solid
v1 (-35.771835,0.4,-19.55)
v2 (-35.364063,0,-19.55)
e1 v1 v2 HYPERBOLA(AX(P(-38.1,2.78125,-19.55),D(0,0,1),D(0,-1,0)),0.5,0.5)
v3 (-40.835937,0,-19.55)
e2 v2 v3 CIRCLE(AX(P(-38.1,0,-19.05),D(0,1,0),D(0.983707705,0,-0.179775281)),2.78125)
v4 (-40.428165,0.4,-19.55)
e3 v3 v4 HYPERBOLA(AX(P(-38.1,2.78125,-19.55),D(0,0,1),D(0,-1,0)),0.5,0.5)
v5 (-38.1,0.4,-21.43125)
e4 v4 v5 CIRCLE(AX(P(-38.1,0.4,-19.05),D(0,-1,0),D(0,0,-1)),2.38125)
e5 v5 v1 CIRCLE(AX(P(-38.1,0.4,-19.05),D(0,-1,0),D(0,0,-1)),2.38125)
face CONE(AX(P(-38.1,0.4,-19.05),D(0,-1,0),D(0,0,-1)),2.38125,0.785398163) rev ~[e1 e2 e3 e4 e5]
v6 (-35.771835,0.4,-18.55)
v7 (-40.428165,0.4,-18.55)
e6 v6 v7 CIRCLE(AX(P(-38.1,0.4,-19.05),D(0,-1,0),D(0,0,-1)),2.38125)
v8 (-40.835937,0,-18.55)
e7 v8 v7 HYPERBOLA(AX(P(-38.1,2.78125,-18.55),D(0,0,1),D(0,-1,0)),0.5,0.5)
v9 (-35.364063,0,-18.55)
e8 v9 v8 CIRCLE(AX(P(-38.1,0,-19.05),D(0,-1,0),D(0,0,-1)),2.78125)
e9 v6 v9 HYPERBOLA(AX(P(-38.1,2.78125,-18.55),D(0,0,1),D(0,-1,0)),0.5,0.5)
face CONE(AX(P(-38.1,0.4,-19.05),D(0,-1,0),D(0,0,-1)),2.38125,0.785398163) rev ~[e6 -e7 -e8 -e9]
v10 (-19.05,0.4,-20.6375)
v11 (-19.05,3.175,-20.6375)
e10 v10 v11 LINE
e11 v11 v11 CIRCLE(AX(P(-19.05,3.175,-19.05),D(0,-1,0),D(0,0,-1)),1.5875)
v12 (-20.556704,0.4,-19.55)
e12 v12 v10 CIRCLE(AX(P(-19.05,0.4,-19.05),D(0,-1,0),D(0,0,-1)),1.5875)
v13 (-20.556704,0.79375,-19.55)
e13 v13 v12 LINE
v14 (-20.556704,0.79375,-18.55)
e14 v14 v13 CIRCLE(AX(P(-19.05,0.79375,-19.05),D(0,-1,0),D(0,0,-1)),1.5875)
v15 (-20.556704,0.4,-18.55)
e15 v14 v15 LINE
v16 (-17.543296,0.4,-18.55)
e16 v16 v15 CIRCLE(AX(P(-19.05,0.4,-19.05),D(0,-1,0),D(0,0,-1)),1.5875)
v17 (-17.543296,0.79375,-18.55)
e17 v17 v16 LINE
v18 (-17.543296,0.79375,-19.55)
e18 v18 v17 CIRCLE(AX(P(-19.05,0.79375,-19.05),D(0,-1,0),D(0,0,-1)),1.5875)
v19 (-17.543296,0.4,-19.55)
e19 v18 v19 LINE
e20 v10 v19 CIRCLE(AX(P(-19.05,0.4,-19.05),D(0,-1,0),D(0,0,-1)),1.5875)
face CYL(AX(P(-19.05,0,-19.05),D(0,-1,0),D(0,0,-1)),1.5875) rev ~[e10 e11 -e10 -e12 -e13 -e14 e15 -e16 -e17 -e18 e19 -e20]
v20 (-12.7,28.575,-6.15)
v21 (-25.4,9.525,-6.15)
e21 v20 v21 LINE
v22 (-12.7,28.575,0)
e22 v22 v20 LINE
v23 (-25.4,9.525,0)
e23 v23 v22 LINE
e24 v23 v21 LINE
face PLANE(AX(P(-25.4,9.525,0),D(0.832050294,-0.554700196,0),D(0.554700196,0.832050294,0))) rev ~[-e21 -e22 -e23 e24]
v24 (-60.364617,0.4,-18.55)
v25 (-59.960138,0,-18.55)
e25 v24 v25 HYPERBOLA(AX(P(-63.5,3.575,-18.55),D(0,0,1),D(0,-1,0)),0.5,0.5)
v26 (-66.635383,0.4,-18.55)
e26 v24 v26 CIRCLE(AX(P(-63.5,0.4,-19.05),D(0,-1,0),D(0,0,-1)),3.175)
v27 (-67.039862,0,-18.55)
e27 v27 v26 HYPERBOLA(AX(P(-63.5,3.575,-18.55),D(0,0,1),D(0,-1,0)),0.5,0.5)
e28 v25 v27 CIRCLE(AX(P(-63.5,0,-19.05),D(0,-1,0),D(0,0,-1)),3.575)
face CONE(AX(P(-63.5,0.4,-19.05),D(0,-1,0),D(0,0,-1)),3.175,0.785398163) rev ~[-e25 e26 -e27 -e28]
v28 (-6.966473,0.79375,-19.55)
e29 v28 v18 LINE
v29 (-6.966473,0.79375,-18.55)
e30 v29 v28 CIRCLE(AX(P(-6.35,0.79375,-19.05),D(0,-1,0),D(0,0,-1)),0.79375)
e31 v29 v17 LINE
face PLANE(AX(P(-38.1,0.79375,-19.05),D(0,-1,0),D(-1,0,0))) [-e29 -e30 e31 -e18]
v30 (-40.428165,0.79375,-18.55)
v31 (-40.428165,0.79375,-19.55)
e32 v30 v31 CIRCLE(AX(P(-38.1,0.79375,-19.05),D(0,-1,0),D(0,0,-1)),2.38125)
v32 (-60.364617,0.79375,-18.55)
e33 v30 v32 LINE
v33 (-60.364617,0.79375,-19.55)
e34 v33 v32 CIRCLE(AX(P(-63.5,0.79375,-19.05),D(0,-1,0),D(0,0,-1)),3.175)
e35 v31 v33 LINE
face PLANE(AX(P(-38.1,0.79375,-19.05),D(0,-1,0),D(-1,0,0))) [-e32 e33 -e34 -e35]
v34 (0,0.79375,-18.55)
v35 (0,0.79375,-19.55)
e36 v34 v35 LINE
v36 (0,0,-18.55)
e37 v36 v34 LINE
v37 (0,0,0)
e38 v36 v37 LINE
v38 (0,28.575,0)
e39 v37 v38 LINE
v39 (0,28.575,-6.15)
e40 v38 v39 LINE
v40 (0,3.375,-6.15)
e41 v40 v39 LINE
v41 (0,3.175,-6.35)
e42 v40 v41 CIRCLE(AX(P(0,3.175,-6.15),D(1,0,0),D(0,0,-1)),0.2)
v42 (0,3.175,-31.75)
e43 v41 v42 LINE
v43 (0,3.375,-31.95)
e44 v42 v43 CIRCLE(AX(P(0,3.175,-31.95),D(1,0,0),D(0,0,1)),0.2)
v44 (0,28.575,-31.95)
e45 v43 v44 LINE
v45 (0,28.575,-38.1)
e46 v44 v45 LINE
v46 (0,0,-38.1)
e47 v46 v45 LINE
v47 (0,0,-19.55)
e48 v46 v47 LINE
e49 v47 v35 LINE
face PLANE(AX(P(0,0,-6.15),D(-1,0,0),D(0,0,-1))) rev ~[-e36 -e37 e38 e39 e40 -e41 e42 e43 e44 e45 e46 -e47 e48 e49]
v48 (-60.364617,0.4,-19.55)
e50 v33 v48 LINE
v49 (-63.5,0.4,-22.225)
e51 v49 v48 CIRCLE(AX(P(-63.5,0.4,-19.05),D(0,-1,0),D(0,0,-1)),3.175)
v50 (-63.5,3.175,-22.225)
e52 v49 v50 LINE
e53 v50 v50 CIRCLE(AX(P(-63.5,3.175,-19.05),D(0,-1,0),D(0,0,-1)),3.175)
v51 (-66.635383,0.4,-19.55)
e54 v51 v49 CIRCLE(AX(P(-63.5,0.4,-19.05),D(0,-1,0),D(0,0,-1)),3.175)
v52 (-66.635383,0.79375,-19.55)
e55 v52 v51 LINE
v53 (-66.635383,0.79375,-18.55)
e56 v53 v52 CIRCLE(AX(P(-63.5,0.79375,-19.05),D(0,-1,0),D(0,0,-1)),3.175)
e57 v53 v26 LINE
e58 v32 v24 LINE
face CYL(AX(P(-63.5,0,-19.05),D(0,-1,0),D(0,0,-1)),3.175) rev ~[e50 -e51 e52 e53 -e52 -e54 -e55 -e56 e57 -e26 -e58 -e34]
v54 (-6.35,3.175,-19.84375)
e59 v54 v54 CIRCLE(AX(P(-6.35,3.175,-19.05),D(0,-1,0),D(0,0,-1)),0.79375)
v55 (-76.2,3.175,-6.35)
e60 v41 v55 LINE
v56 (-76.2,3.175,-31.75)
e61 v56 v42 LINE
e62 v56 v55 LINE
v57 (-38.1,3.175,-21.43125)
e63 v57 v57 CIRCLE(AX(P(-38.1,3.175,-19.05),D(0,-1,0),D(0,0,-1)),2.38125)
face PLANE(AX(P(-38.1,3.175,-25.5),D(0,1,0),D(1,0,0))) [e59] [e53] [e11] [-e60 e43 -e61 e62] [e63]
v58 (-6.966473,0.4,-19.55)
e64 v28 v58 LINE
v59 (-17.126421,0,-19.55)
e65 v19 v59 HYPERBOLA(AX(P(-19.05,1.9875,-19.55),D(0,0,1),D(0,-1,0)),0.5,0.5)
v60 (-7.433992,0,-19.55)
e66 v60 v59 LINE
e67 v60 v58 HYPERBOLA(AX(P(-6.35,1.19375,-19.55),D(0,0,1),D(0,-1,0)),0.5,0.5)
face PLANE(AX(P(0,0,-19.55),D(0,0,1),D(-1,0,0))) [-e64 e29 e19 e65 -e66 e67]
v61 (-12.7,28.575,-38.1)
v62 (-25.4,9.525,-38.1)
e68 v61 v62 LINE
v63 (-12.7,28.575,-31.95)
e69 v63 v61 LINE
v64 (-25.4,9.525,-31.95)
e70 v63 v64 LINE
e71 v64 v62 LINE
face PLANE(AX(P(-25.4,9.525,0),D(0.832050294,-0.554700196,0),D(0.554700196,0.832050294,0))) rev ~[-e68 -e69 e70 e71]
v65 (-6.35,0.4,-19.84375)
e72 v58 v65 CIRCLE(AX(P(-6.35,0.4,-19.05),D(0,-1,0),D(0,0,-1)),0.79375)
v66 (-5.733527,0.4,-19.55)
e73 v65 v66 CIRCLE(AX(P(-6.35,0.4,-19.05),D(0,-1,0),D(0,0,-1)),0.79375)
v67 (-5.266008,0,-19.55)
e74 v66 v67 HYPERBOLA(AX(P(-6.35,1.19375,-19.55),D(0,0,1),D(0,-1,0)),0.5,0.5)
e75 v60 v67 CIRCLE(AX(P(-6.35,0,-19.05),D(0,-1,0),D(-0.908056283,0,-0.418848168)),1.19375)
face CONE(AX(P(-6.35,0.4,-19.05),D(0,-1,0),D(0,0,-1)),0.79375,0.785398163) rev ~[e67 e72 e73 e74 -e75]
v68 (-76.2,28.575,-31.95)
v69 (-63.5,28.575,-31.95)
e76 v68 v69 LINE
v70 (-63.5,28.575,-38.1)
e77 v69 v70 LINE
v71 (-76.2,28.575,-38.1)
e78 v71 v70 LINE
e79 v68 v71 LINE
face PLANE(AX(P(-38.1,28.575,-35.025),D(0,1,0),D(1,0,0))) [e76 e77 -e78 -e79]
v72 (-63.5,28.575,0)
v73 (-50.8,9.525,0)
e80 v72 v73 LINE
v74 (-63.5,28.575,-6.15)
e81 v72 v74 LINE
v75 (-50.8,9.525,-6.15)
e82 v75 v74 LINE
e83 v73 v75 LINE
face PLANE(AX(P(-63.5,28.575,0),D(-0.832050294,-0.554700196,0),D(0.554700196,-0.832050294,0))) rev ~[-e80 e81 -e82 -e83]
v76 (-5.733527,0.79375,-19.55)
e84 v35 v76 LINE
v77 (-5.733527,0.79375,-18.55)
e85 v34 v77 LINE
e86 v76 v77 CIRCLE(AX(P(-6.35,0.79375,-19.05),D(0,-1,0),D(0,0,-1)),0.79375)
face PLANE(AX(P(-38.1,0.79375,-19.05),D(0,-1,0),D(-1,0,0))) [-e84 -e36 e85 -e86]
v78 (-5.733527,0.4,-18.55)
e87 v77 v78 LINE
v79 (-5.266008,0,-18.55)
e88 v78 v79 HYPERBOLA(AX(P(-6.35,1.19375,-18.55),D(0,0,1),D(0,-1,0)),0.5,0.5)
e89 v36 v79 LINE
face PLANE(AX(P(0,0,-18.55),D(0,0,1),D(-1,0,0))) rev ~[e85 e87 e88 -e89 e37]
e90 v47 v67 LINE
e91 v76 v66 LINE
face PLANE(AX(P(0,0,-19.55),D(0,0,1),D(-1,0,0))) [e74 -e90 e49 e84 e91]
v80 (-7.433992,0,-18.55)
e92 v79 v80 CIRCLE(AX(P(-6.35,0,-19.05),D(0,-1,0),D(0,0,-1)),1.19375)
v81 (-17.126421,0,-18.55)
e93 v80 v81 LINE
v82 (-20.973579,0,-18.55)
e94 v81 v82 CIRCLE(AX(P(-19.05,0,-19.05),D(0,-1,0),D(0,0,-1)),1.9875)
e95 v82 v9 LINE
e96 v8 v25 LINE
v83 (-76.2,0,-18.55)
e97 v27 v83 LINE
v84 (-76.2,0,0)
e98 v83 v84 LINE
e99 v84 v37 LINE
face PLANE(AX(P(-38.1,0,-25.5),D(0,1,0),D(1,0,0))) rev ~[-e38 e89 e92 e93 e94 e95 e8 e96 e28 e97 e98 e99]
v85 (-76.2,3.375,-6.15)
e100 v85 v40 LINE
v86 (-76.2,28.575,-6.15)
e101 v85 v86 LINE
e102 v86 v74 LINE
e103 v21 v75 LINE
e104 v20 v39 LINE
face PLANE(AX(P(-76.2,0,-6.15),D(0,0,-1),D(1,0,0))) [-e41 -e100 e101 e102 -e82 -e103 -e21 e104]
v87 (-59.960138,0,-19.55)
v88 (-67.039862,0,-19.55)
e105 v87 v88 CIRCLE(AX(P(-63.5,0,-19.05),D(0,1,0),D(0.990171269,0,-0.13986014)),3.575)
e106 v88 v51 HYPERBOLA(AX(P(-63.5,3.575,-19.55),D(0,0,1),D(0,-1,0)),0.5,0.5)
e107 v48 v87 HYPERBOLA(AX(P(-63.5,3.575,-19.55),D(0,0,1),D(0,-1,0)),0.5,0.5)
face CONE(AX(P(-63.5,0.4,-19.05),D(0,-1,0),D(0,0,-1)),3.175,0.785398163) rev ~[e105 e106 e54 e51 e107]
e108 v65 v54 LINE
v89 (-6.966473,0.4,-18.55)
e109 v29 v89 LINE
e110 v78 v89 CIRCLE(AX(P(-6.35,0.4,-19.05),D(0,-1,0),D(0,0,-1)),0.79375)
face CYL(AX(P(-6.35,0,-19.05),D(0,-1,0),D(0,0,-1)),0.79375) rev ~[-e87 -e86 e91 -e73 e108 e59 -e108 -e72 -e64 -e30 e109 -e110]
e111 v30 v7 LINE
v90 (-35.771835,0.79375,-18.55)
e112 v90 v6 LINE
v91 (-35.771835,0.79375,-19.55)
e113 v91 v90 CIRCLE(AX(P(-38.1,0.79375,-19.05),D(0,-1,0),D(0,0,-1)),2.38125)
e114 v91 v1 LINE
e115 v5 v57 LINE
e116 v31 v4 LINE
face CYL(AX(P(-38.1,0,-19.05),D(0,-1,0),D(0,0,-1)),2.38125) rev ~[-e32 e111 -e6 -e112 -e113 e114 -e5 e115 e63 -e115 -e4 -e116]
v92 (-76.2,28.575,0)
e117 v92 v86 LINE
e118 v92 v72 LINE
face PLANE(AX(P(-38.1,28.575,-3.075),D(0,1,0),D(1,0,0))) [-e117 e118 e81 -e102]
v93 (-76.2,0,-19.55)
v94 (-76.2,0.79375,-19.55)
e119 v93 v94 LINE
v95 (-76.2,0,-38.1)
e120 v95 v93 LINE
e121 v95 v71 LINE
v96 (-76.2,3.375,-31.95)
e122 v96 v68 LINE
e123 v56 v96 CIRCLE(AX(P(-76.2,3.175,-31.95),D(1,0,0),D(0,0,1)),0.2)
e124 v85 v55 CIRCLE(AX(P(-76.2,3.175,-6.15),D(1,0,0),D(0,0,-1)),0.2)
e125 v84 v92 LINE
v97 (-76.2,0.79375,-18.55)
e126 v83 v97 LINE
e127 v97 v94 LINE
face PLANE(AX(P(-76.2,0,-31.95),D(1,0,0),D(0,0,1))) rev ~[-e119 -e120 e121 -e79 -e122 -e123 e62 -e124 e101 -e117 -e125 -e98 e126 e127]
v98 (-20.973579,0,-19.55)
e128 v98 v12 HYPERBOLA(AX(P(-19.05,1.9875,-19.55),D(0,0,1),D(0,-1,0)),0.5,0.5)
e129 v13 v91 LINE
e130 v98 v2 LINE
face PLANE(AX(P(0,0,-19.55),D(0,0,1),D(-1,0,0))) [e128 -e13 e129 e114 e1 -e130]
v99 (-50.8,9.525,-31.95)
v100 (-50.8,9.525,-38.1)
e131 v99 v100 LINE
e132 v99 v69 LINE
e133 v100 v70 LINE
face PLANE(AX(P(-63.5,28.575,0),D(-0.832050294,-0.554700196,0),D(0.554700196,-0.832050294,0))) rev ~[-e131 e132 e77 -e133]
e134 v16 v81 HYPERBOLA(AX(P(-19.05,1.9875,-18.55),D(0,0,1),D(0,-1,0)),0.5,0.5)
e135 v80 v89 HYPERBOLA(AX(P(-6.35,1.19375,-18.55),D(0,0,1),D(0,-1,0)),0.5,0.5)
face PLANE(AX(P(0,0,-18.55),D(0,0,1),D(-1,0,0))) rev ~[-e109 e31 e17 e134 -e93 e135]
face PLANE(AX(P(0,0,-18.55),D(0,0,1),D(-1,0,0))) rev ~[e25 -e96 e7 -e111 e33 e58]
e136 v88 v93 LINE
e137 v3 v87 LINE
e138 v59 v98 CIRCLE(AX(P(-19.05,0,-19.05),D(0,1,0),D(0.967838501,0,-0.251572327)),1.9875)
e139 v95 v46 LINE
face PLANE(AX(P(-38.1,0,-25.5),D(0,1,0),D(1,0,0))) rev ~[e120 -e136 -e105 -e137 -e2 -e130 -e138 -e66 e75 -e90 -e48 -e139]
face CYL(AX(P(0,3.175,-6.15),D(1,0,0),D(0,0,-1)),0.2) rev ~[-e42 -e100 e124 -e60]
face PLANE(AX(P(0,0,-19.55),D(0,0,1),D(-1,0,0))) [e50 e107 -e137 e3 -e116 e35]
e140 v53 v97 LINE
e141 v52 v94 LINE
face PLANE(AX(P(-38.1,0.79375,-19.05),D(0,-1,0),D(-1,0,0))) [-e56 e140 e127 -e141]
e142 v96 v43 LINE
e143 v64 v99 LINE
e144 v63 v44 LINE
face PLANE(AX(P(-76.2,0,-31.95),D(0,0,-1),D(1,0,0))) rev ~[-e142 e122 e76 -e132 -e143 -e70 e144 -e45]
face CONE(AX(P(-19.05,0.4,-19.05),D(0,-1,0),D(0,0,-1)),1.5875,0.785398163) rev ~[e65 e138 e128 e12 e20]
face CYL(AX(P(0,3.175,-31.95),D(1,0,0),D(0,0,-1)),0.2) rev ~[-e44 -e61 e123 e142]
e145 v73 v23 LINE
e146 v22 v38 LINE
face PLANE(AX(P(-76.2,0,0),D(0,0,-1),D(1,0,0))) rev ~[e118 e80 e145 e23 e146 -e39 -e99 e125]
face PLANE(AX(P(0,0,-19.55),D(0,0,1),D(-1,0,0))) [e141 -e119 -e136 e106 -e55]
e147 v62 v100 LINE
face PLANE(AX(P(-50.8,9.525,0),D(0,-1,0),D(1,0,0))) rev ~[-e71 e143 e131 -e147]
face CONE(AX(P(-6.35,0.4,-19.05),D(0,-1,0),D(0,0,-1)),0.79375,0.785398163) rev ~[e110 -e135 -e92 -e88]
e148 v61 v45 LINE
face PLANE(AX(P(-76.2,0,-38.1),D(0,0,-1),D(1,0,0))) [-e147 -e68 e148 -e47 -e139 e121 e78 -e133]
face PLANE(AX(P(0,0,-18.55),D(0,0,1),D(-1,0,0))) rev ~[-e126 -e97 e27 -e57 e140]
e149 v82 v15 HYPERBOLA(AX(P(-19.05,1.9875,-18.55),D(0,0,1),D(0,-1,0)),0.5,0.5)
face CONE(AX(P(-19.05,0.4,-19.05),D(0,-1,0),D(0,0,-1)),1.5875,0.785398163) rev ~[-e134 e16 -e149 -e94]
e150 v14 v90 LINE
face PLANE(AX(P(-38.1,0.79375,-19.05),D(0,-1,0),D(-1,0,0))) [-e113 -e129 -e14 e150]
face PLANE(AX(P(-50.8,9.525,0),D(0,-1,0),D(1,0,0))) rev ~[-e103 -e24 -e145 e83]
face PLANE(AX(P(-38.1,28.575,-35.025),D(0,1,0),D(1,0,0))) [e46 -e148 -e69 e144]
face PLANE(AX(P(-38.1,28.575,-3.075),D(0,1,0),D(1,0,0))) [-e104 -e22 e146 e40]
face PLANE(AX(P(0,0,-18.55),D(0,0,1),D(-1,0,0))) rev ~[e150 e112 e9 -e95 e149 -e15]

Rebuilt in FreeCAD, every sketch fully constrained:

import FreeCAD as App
import Part
import Sketcher
Q = App.Units.Quantity


def edges_at(feature, points):
    """Names of the edges that pass closest to the given points."""
    edges = feature.Shape.Edges
    near = lambda p: min(range(len(edges)), key=lambda i: edges[i].distToShape(Part.Vertex(*p))[0])
    return sorted({f"Edge{near(p) + 1}" for p in points})


def add_polygon(sketch, points):
    """Adds a closed chain of lines whose ends are joined by coincident constraints."""
    first, n = sketch.GeometryCount, len(points)
    for a, b in zip(points, points[1:] + points[:1]):
        sketch.addGeometry(Part.LineSegment(App.Vector(*a, 0), App.Vector(*b, 0)), False)
    for i in range(n):
        sketch.addConstraint(Sketcher.Constraint("Coincident", first + i, 2, first + (i + 1) % n, 1))

doc = App.newDocument("Part")
body = doc.addObject("PartDesign::Body", "Body")

sketch1 = body.newObject("Sketcher::SketchObject", "Sketch")
sketch1.AttachmentSupport = (doc.getObject("XZ_Plane"), [""])
sketch1.MapMode = "FlatFace"
add_polygon(sketch1, [(-76, -38), (-76, -32), (0, -32), (0, -38)])
sketch1.addConstraint(Sketcher.Constraint("Vertical", 0))
sketch1.addConstraint(Sketcher.Constraint("Horizontal", 1))
sketch1.addConstraint(Sketcher.Constraint("Vertical", 2))
sketch1.addConstraint(Sketcher.Constraint("Horizontal", 3))
sketch1.addConstraint(Sketcher.Constraint("PointOnObject", 1, 2, -2))
sketch1.addConstraint(Sketcher.Constraint("DistanceX", 1, 1, 1, 2, Q("3 in")))
sketch1.addConstraint(Sketcher.Constraint("DistanceY", 2, 2, -1, 1, Q("1.5 in")))
sketch1.addConstraint(Sketcher.Constraint("DistanceY", 0, 1, 0, 2, Q("6.15 mm")))
pad1 = body.newObject("PartDesign::Pad", "Pad")
pad1.Profile = sketch1
pad1.Length = Q("1.125 in")
pad1.Reversed = True
body2 = doc.addObject("PartDesign::Body", "Body001")

sketch2 = body2.newObject("Sketcher::SketchObject", "Sketch001")
sketch2.AttachmentSupport = (doc.getObject("XZ_Plane001"), [""])
sketch2.MapMode = "FlatFace"
add_polygon(sketch2, [(-76, -6), (-76, 0), (0, 0), (0, -6)])
sketch2.addConstraint(Sketcher.Constraint("Vertical", 0))
sketch2.addConstraint(Sketcher.Constraint("Horizontal", 1))
sketch2.addConstraint(Sketcher.Constraint("Vertical", 2))
sketch2.addConstraint(Sketcher.Constraint("Horizontal", 3))
sketch2.addConstraint(Sketcher.Constraint("Coincident", 1, 2, -1, 1))
sketch2.addConstraint(Sketcher.Constraint("DistanceX", 1, 1, 1, 2, Q("3 in")))
sketch2.addConstraint(Sketcher.Constraint("DistanceY", 0, 1, 0, 2, Q("6.15 mm")))
pad2 = body2.newObject("PartDesign::Pad", "Pad001")
pad2.Profile = sketch2
pad2.Length = Q("1.125 in")
pad2.Reversed = True
body.AllowCompound = True
doc.recompute()

boolean = body.newObject("PartDesign::Boolean", "Boolean")
boolean.Type = "Fuse"
boolean.addObjects([body2])

sketch3 = body.newObject("Sketcher::SketchObject", "Sketch002")
sketch3.AttachmentSupport = (doc.getObject("XZ_Plane"), [""])
sketch3.MapMode = "FlatFace"
add_polygon(sketch3, [(-76, -32), (-76, -6), (0, -6), (0, -32)])
sketch3.addConstraint(Sketcher.Constraint("Vertical", 0))
sketch3.addConstraint(Sketcher.Constraint("Horizontal", 1))
sketch3.addConstraint(Sketcher.Constraint("Vertical", 2))
sketch3.addConstraint(Sketcher.Constraint("Horizontal", 3))
sketch3.addConstraint(Sketcher.Constraint("PointOnObject", 1, 2, -2))
sketch3.addConstraint(Sketcher.Constraint("DistanceX", 1, 1, 1, 2, Q("3 in")))
sketch3.addConstraint(Sketcher.Constraint("DistanceY", 0, 1, 0, 2, Q("25.8 mm")))
sketch3.addConstraint(Sketcher.Constraint("DistanceY", 0, 2, -1, 1, Q("6.15 mm")))
pad3 = body.newObject("PartDesign::Pad", "Pad002")
pad3.Profile = sketch3
pad3.Length = Q("0.125 in")
pad3.Reversed = True

sketch4 = body.newObject("Sketcher::SketchObject", "Sketch003")
sketch4.AttachmentSupport = (doc.getObject("XY_Plane"), [""])
sketch4.MapMode = "FlatFace"
add_polygon(sketch4, [(-64, 29), (-51, 10), (-25, 10), (-13, 29)])
sketch4.addConstraint(Sketcher.Constraint("Horizontal", 1))
sketch4.addConstraint(Sketcher.Constraint("Horizontal", 3))
sketch4.addConstraint(Sketcher.Constraint("Equal", 0, 2))
sketch4.addConstraint(Sketcher.Constraint("DistanceX", 1, 1, 1, 2, Q("1 in")))
sketch4.addConstraint(Sketcher.Constraint("DistanceX", 3, 2, 3, 1, Q("2 in")))
sketch4.addConstraint(Sketcher.Constraint("DistanceX", 0, 2, -1, 1, Q("2 in")))
sketch4.addConstraint(Sketcher.Constraint("DistanceY", 1, 2, 2, 2, Q("0.75 in")))
sketch4.addConstraint(Sketcher.Constraint("DistanceY", -1, 1, 0, 2, Q("0.375 in")))
pocket1 = body.newObject("PartDesign::Pocket", "Pocket")
pocket1.Profile = sketch4
pocket1.Type = "ThroughAll"

sketch5 = body.newObject("Sketcher::SketchObject", "Sketch004")
sketch5.AttachmentSupport = (doc.getObject("XZ_Plane"), [""])
sketch5.MapMode = "FlatFace"
sketch5.addGeometry(Part.Circle(App.Vector(-63.5, -19.1, 0), App.Vector(0, 0, 1), 3.2), False)
sketch5.addGeometry(Part.Circle(App.Vector(-38.1, -19.1, 0), App.Vector(0, 0, 1), 2.4), False)
sketch5.addGeometry(Part.Circle(App.Vector(-19.1, -19.1, 0), App.Vector(0, 0, 1), 1.6), False)
sketch5.addGeometry(Part.Circle(App.Vector(-6.3, -19.1, 0), App.Vector(0, 0, 1), 0.8), False)
sketch5.addConstraint(Sketcher.Constraint("Horizontal", 0, 3, 1, 3))
sketch5.addConstraint(Sketcher.Constraint("Horizontal", 1, 3, 2, 3))
sketch5.addConstraint(Sketcher.Constraint("Horizontal", 2, 3, 3, 3))
sketch5.addConstraint(Sketcher.Constraint("Diameter", 0, Q("0.25 in")))
sketch5.addConstraint(Sketcher.Constraint("Diameter", 1, Q("0.1875 in")))
sketch5.addConstraint(Sketcher.Constraint("Diameter", 2, Q("0.125 in")))
sketch5.addConstraint(Sketcher.Constraint("Diameter", 3, Q("0.0625 in")))
sketch5.addConstraint(Sketcher.Constraint("DistanceX", 0, 3, 1, 3, Q("1 in")))
sketch5.addConstraint(Sketcher.Constraint("DistanceX", 0, 3, -1, 1, Q("2.5 in")))
sketch5.addConstraint(Sketcher.Constraint("DistanceX", 2, 3, 3, 3, Q("0.5 in")))
sketch5.addConstraint(Sketcher.Constraint("DistanceY", 0, 3, -1, 1, Q("0.75 in")))
sketch5.addConstraint(Sketcher.Constraint("DistanceX", 2, 3, -1, 1, Q("0.75 in")))
pocket2 = body.newObject("PartDesign::Pocket", "Pocket001")
pocket2.Profile = sketch5
pocket2.Type = "ThroughAll"

sketch6 = body.newObject("Sketcher::SketchObject", "Sketch005")
sketch6.AttachmentSupport = (doc.getObject("YZ_Plane"), [""])
sketch6.MapMode = "FlatFace"
sketch6.addGeometry(Part.Circle(App.Vector(3.17, -6.15, 0), App.Vector(0, 0, 1), 0.2), False)
sketch6.addGeometry(Part.Circle(App.Vector(3.17, -31.95, 0), App.Vector(0, 0, 1), 0.2), False)
sketch6.addConstraint(Sketcher.Constraint("Equal", 0, 1))
sketch6.addConstraint(Sketcher.Constraint("Vertical", 0, 3, 1, 3))
sketch6.addConstraint(Sketcher.Constraint("Diameter", 0, Q("0.4 mm")))
sketch6.addConstraint(Sketcher.Constraint("DistanceX", -1, 1, 0, 3, Q("0.125 in")))
sketch6.addConstraint(Sketcher.Constraint("DistanceY", 0, 3, -1, 1, Q("6.15 mm")))
sketch6.addConstraint(Sketcher.Constraint("DistanceY", 1, 3, -1, 1, Q("31.95 mm")))
pocket3 = body.newObject("PartDesign::Pocket", "Pocket002")
pocket3.Profile = sketch6
pocket3.Type = "ThroughAll"
doc.recompute()

chamfer = body.newObject("PartDesign::Chamfer", "Chamfer")
chamfer.Base = (pocket3, edges_at(pocket3, [
    (-63.5, 0, -15.875),
    (-38.1, 0, -16.669),
    (-19.05, 0, -17.462),
    (-6.35, 0, -18.256),
]))
chamfer.Size = 0.4

sketch7 = body.newObject("Sketcher::SketchObject", "Sketch006")
sketch7.AttachmentSupport = (doc.getObject("XZ_Plane"), [""])
sketch7.MapMode = "FlatFace"
add_polygon(sketch7, [(0, -19.6), (0, -18.6), (-76.2, -18.6), (-76.2, -19.6)])
sketch7.addConstraint(Sketcher.Constraint("Vertical", 0))
sketch7.addConstraint(Sketcher.Constraint("Horizontal", 1))
sketch7.addConstraint(Sketcher.Constraint("Vertical", 2))
sketch7.addConstraint(Sketcher.Constraint("Horizontal", 3))
sketch7.addConstraint(Sketcher.Constraint("PointOnObject", 0, 2, -2))
sketch7.addConstraint(Sketcher.Constraint("DistanceX", 1, 2, 1, 1, Q("3 in")))
sketch7.addConstraint(Sketcher.Constraint("DistanceY", 0, 1, 0, 2, Q("1 mm")))
sketch7.addConstraint(Sketcher.Constraint("DistanceY", 0, 2, -1, 1, Q("18.55 mm")))
pocket4 = body.newObject("PartDesign::Pocket", "Pocket003")
pocket4.Profile = sketch7
pocket4.Length = Q("0.03125 in")

doc.recompute()
